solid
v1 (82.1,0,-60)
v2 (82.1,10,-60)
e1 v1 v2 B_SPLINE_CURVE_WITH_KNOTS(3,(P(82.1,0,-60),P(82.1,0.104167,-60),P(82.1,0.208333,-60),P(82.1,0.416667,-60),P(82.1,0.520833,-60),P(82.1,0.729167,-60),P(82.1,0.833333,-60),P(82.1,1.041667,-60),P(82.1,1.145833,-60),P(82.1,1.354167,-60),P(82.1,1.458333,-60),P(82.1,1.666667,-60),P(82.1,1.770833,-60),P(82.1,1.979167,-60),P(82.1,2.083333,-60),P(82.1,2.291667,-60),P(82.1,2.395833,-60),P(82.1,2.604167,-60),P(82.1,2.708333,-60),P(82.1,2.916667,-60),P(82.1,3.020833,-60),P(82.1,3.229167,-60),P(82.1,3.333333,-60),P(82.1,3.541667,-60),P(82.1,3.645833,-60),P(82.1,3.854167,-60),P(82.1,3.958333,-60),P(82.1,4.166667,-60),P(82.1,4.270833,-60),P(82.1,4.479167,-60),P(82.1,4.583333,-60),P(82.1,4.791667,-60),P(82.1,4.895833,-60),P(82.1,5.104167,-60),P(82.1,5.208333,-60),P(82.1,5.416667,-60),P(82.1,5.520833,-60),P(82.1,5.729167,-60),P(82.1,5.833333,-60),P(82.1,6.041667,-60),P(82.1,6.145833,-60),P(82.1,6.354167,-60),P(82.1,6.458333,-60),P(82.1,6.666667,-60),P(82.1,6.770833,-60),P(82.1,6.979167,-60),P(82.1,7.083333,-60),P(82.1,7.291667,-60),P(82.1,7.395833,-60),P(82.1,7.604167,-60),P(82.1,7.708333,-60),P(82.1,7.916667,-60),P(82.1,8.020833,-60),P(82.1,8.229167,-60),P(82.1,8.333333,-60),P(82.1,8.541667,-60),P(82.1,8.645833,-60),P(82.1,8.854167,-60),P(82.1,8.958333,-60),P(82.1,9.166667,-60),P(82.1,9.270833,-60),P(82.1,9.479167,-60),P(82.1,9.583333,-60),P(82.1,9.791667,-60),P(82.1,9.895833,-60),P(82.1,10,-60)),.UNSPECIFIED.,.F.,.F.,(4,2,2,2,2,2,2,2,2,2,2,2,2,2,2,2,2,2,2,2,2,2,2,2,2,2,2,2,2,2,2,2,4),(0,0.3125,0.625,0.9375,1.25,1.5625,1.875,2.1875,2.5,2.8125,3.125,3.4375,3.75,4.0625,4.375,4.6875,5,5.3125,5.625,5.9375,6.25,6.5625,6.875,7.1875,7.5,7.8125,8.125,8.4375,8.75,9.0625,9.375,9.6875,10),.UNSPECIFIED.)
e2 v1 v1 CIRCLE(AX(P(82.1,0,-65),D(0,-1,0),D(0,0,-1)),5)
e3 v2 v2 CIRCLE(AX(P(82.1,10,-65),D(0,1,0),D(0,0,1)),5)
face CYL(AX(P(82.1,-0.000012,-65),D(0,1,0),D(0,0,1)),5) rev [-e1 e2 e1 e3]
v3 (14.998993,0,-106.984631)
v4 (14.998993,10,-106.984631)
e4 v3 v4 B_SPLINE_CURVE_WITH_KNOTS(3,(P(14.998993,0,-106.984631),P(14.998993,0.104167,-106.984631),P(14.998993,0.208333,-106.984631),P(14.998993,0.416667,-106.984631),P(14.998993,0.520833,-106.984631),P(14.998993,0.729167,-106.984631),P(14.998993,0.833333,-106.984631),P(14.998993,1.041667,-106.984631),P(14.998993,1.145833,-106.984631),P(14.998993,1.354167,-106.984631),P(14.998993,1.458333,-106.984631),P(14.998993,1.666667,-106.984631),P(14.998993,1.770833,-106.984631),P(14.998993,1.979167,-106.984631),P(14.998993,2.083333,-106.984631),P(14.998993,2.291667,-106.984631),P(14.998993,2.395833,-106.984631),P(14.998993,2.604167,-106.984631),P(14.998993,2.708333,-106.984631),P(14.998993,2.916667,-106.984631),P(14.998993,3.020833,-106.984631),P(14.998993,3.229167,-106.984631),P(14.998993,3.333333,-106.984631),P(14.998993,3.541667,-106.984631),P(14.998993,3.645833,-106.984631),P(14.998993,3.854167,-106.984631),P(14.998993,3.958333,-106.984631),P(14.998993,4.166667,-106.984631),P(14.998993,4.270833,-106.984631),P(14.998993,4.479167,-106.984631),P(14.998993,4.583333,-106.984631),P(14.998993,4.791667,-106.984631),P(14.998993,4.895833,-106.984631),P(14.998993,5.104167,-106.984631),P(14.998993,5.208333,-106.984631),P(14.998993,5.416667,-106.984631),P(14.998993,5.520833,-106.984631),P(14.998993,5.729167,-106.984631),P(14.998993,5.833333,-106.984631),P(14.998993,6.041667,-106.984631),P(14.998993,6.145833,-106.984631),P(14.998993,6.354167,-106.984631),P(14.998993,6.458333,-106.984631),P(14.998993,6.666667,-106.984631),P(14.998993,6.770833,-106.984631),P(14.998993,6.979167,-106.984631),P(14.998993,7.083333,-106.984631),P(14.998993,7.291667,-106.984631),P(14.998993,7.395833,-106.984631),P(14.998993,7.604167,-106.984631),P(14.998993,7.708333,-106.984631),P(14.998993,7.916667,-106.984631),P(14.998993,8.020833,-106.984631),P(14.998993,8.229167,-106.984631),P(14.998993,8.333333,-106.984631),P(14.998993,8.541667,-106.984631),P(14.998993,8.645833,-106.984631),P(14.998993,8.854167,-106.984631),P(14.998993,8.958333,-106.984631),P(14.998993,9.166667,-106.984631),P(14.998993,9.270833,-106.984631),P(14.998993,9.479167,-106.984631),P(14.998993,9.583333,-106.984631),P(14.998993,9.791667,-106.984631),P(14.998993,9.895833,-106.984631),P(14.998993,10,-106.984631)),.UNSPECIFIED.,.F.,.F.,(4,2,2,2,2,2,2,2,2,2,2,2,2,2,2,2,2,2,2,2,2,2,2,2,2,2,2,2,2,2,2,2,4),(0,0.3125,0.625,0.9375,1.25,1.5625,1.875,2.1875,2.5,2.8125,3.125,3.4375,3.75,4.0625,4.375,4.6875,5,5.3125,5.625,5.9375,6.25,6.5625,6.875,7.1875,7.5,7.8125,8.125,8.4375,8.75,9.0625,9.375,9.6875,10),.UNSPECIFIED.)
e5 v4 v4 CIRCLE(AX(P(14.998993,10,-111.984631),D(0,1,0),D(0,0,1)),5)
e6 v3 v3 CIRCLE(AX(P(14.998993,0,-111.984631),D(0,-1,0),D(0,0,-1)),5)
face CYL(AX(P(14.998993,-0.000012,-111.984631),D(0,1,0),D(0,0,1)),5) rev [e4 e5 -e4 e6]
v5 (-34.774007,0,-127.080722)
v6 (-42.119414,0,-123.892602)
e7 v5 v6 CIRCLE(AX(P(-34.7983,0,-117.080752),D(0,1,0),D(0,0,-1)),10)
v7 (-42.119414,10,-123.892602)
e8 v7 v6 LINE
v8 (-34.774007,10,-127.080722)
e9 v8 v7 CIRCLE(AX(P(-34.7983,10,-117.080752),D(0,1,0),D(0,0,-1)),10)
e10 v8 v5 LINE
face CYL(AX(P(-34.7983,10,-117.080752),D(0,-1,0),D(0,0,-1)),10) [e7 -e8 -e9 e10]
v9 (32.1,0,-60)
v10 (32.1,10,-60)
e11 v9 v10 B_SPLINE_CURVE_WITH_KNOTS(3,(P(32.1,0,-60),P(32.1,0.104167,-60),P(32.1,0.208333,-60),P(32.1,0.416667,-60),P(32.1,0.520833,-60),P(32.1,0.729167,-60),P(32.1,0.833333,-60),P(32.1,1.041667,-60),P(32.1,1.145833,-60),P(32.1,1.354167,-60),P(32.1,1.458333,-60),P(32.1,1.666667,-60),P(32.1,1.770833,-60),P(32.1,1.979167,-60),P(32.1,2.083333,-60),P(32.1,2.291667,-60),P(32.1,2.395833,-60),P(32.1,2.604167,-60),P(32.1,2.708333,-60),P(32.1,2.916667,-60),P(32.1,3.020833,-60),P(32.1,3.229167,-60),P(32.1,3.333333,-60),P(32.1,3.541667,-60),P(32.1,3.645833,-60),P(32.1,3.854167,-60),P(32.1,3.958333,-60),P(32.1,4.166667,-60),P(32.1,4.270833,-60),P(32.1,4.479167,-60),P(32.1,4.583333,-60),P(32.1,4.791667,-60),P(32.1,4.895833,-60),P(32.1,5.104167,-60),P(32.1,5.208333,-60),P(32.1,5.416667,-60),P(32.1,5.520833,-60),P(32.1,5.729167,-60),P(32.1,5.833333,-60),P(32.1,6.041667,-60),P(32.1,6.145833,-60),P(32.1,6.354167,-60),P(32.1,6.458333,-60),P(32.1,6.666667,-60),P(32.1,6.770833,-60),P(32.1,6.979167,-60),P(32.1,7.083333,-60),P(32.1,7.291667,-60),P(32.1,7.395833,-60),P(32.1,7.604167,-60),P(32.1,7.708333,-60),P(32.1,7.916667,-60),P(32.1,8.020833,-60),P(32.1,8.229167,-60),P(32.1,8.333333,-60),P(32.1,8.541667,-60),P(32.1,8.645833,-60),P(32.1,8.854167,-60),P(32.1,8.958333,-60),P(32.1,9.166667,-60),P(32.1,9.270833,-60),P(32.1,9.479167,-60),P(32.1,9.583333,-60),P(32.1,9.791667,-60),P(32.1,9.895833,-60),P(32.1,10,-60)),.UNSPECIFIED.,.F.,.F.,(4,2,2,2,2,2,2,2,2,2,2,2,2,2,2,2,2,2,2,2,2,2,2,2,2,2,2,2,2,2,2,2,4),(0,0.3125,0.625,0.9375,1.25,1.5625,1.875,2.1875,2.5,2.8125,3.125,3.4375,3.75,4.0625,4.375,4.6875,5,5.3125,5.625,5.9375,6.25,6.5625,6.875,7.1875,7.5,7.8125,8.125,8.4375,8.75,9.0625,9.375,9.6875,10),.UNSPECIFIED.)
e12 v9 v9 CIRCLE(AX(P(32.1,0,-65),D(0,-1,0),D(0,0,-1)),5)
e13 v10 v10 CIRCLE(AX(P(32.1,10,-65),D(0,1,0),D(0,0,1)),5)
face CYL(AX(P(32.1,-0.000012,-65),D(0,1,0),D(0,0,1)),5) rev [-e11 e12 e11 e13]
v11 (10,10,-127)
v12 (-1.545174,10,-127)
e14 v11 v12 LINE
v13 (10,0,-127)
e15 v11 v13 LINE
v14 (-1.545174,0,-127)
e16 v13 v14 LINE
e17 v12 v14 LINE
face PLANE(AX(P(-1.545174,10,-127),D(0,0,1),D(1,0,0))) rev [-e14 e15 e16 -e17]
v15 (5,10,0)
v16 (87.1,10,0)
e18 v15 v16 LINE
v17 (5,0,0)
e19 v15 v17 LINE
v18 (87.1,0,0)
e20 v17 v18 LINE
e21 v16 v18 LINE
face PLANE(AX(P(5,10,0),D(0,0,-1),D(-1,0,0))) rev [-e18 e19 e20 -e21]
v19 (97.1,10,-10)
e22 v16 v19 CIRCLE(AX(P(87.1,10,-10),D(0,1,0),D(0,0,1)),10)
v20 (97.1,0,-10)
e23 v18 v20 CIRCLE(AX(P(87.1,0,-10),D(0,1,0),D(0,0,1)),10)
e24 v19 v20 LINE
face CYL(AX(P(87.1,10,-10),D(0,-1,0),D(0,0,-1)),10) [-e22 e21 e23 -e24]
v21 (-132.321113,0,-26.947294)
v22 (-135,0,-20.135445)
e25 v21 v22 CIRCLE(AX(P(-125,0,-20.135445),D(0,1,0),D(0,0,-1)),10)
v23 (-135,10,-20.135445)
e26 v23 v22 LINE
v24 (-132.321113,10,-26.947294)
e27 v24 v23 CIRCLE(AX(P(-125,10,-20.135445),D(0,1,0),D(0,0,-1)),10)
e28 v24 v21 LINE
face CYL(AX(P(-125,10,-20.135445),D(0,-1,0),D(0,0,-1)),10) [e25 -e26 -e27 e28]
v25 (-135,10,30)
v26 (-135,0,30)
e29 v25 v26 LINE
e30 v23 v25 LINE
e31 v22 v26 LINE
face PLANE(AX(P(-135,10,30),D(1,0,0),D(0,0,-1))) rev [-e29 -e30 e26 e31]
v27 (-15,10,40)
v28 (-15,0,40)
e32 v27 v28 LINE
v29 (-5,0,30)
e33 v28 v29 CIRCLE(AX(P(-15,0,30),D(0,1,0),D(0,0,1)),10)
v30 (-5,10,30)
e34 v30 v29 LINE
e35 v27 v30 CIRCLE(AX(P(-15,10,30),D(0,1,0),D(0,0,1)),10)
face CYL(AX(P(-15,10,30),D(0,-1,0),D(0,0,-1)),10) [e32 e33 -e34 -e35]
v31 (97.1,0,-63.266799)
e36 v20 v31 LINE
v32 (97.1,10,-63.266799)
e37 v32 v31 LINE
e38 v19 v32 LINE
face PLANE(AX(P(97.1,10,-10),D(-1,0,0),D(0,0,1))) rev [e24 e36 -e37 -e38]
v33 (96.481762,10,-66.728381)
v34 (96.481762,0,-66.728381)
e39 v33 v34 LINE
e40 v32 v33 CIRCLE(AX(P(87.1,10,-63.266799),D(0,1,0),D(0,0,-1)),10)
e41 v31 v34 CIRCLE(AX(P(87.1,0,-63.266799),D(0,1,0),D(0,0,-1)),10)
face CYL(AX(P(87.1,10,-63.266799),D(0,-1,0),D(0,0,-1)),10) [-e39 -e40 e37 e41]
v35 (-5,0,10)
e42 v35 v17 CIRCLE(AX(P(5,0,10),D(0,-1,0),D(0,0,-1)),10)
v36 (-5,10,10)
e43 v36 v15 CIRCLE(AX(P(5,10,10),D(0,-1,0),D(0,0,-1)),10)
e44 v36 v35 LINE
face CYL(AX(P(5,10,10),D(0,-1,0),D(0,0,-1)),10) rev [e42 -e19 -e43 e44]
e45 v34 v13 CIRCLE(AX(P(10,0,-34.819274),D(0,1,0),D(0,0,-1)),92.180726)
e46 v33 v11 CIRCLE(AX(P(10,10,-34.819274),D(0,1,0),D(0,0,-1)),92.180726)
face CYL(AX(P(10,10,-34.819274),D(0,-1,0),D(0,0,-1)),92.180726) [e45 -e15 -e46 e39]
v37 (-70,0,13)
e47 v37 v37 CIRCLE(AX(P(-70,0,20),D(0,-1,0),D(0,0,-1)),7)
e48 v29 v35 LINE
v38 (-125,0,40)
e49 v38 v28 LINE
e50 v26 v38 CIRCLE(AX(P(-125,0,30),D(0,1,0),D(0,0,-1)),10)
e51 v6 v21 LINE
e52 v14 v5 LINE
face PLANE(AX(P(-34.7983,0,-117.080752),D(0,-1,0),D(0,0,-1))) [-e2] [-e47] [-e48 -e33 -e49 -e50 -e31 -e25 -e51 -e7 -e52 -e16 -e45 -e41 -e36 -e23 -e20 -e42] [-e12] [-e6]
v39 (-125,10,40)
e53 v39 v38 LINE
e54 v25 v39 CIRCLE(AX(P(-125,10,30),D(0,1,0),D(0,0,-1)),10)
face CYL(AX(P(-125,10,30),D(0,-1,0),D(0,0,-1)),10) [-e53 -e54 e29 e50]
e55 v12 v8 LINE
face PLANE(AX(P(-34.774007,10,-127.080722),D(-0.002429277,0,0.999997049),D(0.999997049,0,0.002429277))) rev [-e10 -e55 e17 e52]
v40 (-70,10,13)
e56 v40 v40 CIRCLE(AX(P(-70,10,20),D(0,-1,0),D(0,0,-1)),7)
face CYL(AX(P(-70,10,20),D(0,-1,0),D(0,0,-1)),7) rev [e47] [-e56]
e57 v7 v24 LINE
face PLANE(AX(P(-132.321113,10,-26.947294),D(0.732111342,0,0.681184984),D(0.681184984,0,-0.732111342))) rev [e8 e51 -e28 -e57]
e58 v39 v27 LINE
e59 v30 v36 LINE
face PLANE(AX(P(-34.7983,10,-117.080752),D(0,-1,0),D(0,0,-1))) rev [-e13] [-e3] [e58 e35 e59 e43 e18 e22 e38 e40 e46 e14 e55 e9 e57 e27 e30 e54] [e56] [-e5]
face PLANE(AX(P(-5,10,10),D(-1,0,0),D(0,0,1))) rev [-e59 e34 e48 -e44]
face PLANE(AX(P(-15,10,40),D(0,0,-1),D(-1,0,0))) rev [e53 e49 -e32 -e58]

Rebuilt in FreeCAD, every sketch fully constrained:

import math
import FreeCAD as App
import Part
import Sketcher
Q = App.Units.Quantity

doc = App.newDocument("Part")
body = doc.addObject("PartDesign::Body", "Body")

# Sketch on XZ plane
sketch1 = doc.addObject("Sketcher::SketchObject", "Sketch")
body.addObject(sketch1)
sketch1.AttachmentSupport = (doc.XZ_Plane, [""])
sketch1.MapMode = "FlatFace"
sketch1.addGeometry([
    Part.LineSegment(App.Vector(10, -127, 0), App.Vector(-1.5, -127, 0)),  # 0
    Part.LineSegment(App.Vector(-1.5, -127, 0), App.Vector(-34.8, -127.1, 0)),  # 1
    Part.ArcOfCircle(Part.Circle(App.Vector(-34.8, -117.1, 0), App.Vector(0, 0, 1), 10), math.radians(-137), math.radians(-90)),  # 2
    Part.LineSegment(App.Vector(-42.1, -123.9, 0), App.Vector(-132.3, -26.9, 0)),  # 3
    Part.ArcOfCircle(Part.Circle(App.Vector(-125, -20.1, 0), App.Vector(0, 0, 1), 10), math.radians(180), math.radians(223)),  # 4
    Part.LineSegment(App.Vector(-135, -20.1, 0), App.Vector(-135, 30, 0)),  # 5
    Part.ArcOfCircle(Part.Circle(App.Vector(-125, 30, 0), App.Vector(0, 0, 1), 10), math.radians(90), math.radians(180)),  # 6
    Part.LineSegment(App.Vector(-125, 40, 0), App.Vector(-15, 40, 0)),  # 7
    Part.ArcOfCircle(Part.Circle(App.Vector(-15, 30, 0), App.Vector(0, 0, 1), 10), math.radians(0), math.radians(90)),  # 8
    Part.LineSegment(App.Vector(-5, 30, 0), App.Vector(-5, 10, 0)),  # 9
    Part.ArcOfCircle(Part.Circle(App.Vector(5, 10, 0), App.Vector(0, 0, 1), 10), math.radians(180), math.radians(270)),  # 10
    Part.LineSegment(App.Vector(5, 0, 0), App.Vector(87.1, 0, 0)),  # 11
    Part.ArcOfCircle(Part.Circle(App.Vector(87.1, -10, 0), App.Vector(0, 0, 1), 10), math.radians(0), math.radians(90)),  # 12
    Part.LineSegment(App.Vector(97.1, -10, 0), App.Vector(97.1, -63.3, 0)),  # 13
    Part.ArcOfCircle(Part.Circle(App.Vector(87.1, -63.3, 0), App.Vector(0, 0, 1), 10), math.radians(-20), math.radians(0)),  # 14
    Part.ArcOfCircle(Part.Circle(App.Vector(10, -34.8, 0), App.Vector(0, 0, 1), 92.2), math.radians(-90), math.radians(-20)),  # 15
], False)
sketch1.addConstraint([
    Sketcher.Constraint("Coincident", 0, 2, 1, 1),
    Sketcher.Constraint("Tangent", 1, 2, 2, 2),
    Sketcher.Constraint("Tangent", 2, 1, 3, 1),
    Sketcher.Constraint("Tangent", 3, 2, 4, 2),
    Sketcher.Constraint("Tangent", 4, 1, 5, 1),
    Sketcher.Constraint("Tangent", 5, 2, 6, 2),
    Sketcher.Constraint("Tangent", 6, 1, 7, 1),
    Sketcher.Constraint("Tangent", 7, 2, 8, 2),
    Sketcher.Constraint("Tangent", 8, 1, 9, 1),
    Sketcher.Constraint("Tangent", 9, 2, 10, 1),
    Sketcher.Constraint("Tangent", 10, 2, 11, 1),
    Sketcher.Constraint("Tangent", 11, 2, 12, 2),
    Sketcher.Constraint("Tangent", 12, 1, 13, 1),
    Sketcher.Constraint("Tangent", 13, 2, 14, 2),
    Sketcher.Constraint("Tangent", 14, 1, 15, 2),
    Sketcher.Constraint("Tangent", 15, 1, 0, 1),
    Sketcher.Constraint("Horizontal", 0),
    Sketcher.Constraint("Vertical", 5),
    Sketcher.Constraint("Horizontal", 7),
    Sketcher.Constraint("Vertical", 9),
    Sketcher.Constraint("Horizontal", 11),
    Sketcher.Constraint("Vertical", 13),
    Sketcher.Constraint("Equal", 2, 4),
    Sketcher.Constraint("Equal", 4, 6),
    Sketcher.Constraint("Equal", 6, 8),
    Sketcher.Constraint("Equal", 8, 10),
    Sketcher.Constraint("Equal", 10, 12),
    Sketcher.Constraint("Equal", 12, 14),
    Sketcher.Constraint("PointOnObject", 10, 2, -1),
    Sketcher.Constraint("Radius", 2, Q("10 mm")),
    Sketcher.Constraint("DistanceX", 7, 1, 7, 2, Q("110 mm")),
    Sketcher.Constraint("DistanceY", 9, 2, 9, 1, Q("20 mm")),
    Sketcher.Constraint("DistanceX", 11, 1, 11, 2, Q("82.1 mm")),
    Sketcher.Constraint("DistanceX", 4, 3, -1, 1, Q("125 mm")),
    Sketcher.Constraint("DistanceX", -1, 1, 15, 3, Q("10 mm")),
    Sketcher.Constraint("DistanceY", 0, 2, -1, 1, Q("127 mm")),
    Sketcher.Constraint("DistanceY", 13, 2, 13, 1, Q("53.266799 mm")),
    Sketcher.Constraint("DistanceX", 2, 3, -1, 1, Q("34.7983 mm")),
    Sketcher.Constraint("DistanceY", 2, 1, -1, 1, Q("123.892602 mm")),
    Sketcher.Constraint("Distance", 1, Q("33.228931 mm")),
    Sketcher.Constraint("DistanceX", 0, 2, 0, 1, Q("11.545174 mm")),
])
pad1 = doc.addObject("PartDesign::Pad", "Pad")
body.addObject(pad1)
pad1.Profile = sketch1
pad1.Length = 10
pad1.Reversed = True

# Sketch on XZ plane
sketch2 = doc.addObject("Sketcher::SketchObject", "Sketch001")
body.addObject(sketch2)
sketch2.AttachmentSupport = (doc.XZ_Plane, [""])
sketch2.MapMode = "FlatFace"
sketch2.addGeometry([
    Part.Circle(App.Vector(15, -112, 0), App.Vector(0, 0, 1), 5),
    Part.Circle(App.Vector(82, -65, 0), App.Vector(0, 0, 1), 5),
    Part.Circle(App.Vector(32, -65, 0), App.Vector(0, 0, 1), 5),
], False)
sketch2.addConstraint([
    Sketcher.Constraint("Equal", 0, 1),
    Sketcher.Constraint("Equal", 1, 2),
    Sketcher.Constraint("Horizontal", 1, 3, 2, 3),
    Sketcher.Constraint("Diameter", 0, Q("10 mm")),
    Sketcher.Constraint("DistanceY", 1, 3, -1, 1, Q("65 mm")),
    Sketcher.Constraint("DistanceX", 2, 3, 1, 3, Q("50 mm")),
    Sketcher.Constraint("DistanceX", -1, 1, 1, 3, Q("82.1 mm")),
    Sketcher.Constraint("DistanceY", 0, 3, -1, 1, Q("111.984631 mm")),
    Sketcher.Constraint("DistanceX", -1, 1, 0, 3, Q("14.998993 mm")),
])
pocket1 = doc.addObject("PartDesign::Pocket", "Pocket")
body.addObject(pocket1)
pocket1.Profile = sketch2
pocket1.Type = "ThroughAll"
pocket1.Midplane = True

# Sketch on XZ plane
sketch3 = doc.addObject("Sketcher::SketchObject", "Sketch002")
body.addObject(sketch3)
sketch3.AttachmentSupport = (doc.XZ_Plane, [""])
sketch3.MapMode = "FlatFace"
sketch3.addGeometry(Part.Circle(App.Vector(-70, 20, 0), App.Vector(0, 0, 1), 7), False)
sketch3.addConstraint([
    Sketcher.Constraint("Diameter", 0, Q("14 mm")),
    Sketcher.Constraint("DistanceX", 0, 3, -1, 1, Q("70 mm")),
    Sketcher.Constraint("DistanceY", -1, 1, 0, 3, Q("20 mm")),
])
pocket2 = doc.addObject("PartDesign::Pocket", "Pocket001")
body.addObject(pocket2)
pocket2.Profile = sketch3
pocket2.Type = "ThroughAll"

doc.recompute()
